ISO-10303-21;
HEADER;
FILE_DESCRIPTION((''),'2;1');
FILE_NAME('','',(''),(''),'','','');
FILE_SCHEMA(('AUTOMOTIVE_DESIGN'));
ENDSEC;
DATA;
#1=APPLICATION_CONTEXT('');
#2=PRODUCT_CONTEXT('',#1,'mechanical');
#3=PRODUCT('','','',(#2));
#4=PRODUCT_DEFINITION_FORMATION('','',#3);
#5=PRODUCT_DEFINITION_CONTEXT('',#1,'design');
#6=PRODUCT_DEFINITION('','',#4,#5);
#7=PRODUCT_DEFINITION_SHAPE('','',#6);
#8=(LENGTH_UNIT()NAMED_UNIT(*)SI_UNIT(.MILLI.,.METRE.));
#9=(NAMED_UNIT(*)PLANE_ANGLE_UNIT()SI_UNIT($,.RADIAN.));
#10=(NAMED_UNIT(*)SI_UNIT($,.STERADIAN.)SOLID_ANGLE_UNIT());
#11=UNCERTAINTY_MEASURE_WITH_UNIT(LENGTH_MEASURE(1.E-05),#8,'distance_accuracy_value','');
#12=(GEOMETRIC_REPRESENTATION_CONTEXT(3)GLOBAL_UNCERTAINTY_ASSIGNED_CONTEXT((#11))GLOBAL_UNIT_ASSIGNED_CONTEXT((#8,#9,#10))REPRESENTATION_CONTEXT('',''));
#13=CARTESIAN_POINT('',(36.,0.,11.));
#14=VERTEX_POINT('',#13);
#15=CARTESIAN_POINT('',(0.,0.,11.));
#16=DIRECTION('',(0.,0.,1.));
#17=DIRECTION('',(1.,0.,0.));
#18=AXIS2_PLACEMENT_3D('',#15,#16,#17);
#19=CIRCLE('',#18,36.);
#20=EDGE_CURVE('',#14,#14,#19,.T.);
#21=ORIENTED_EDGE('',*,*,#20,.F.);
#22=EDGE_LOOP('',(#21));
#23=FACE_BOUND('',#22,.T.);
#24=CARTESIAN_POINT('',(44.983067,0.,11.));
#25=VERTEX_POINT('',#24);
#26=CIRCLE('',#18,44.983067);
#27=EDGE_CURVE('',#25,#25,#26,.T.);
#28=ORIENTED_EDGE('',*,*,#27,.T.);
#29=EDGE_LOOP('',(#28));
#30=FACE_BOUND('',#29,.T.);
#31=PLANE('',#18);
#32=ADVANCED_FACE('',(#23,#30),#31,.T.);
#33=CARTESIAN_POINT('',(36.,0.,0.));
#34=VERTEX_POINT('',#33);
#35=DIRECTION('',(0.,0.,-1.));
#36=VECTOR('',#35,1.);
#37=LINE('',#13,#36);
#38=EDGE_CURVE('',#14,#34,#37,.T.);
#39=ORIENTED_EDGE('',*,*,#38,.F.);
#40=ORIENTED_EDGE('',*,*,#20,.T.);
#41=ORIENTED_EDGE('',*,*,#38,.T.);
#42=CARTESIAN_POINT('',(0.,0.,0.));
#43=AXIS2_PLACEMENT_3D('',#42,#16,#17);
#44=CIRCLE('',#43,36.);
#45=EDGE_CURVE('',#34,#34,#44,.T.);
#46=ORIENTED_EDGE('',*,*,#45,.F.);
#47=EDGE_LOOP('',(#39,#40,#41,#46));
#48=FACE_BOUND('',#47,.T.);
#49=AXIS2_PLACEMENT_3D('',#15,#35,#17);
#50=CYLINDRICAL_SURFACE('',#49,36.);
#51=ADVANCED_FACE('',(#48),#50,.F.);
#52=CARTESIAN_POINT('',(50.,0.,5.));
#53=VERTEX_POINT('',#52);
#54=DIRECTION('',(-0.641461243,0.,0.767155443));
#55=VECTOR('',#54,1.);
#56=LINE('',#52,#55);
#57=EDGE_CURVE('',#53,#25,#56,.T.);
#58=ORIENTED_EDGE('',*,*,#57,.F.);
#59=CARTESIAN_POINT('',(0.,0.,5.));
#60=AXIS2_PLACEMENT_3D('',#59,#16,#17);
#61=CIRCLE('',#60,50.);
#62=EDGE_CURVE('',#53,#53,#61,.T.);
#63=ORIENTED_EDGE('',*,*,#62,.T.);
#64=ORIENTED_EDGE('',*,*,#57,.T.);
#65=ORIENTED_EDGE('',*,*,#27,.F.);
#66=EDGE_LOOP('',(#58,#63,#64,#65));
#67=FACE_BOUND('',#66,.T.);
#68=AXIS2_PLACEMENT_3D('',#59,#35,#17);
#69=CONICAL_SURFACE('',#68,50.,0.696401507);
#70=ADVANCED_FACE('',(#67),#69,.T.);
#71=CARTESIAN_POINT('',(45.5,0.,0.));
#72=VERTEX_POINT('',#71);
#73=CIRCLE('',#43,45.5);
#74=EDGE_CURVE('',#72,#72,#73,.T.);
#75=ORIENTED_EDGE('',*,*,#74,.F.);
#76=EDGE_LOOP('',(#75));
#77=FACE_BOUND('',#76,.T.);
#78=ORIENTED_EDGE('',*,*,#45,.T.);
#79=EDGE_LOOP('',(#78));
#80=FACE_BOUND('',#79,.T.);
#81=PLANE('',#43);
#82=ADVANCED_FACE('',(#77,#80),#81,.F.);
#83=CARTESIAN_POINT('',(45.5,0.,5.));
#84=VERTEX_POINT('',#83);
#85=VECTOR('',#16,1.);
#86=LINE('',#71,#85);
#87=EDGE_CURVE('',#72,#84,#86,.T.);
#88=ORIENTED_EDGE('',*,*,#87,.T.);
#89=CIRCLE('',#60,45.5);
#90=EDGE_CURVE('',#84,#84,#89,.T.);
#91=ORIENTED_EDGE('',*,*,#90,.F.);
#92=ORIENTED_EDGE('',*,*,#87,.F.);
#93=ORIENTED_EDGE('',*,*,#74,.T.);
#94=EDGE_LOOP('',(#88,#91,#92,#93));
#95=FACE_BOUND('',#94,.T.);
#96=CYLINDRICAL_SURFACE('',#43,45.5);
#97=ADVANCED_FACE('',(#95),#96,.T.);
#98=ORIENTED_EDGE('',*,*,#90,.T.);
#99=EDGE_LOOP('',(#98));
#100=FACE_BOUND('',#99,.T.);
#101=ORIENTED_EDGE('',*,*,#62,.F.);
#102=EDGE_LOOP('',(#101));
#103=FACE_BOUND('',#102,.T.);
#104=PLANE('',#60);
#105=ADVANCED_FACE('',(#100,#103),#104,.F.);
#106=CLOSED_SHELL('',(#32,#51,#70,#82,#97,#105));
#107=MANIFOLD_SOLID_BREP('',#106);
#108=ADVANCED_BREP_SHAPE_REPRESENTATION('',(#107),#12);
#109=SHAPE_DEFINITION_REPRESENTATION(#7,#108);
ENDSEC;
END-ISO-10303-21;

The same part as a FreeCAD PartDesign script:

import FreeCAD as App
import Part
import Sketcher
Q = App.Units.Quantity


def add_polygon(sketch, points):
    """Adds a closed chain of lines whose ends are joined by coincident constraints."""
    first, n = sketch.GeometryCount, len(points)
    for a, b in zip(points, points[1:] + points[:1]):
        sketch.addGeometry(Part.LineSegment(App.Vector(*a, 0), App.Vector(*b, 0)), False)
    for i in range(n):
        sketch.addConstraint(Sketcher.Constraint("Coincident", first + i, 2, first + (i + 1) % n, 1))

doc = App.newDocument("Part")
body = doc.addObject("PartDesign::Body", "Body")

# Sketch on XZ plane
sketch1 = doc.addObject("Sketcher::SketchObject", "Sketch")
body.addObject(sketch1)
sketch1.AttachmentSupport = (doc.XZ_Plane, [""])
sketch1.MapMode = "FlatFace"
add_polygon(sketch1, [(36, 0), (45.5, 0), (45.5, 5), (50, 5), (45, 11), (36, 11)])  # lines 0-5
sketch1.addConstraint([
    Sketcher.Constraint("Horizontal", 0),
    Sketcher.Constraint("Vertical", 1),
    Sketcher.Constraint("Horizontal", 2),
    Sketcher.Constraint("Horizontal", 4),
    Sketcher.Constraint("Vertical", 5),
    Sketcher.Constraint("PointOnObject", 0, 2, -1),
    Sketcher.Constraint("DistanceY", 1, 1, 1, 2, Q("5 mm")),
    Sketcher.Constraint("DistanceY", 5, 2, 5, 1, Q("11 mm")),
    Sketcher.Constraint("DistanceX", 0, 1, 0, 2, Q("9.5 mm")),
    Sketcher.Constraint("DistanceX", 2, 1, 2, 2, Q("4.5 mm")),
    Sketcher.Constraint("DistanceX", -1, 1, 2, 2, Q("50 mm")),
    Sketcher.Constraint("Distance", 3, Q("7.821101 mm")),
])
revolution = doc.addObject("PartDesign::Revolution", "Revolution")
body.addObject(revolution)
revolution.Profile = sketch1
revolution.ReferenceAxis = (sketch1, ["V_Axis"])
revolution.Angle = 360

doc.recompute()
